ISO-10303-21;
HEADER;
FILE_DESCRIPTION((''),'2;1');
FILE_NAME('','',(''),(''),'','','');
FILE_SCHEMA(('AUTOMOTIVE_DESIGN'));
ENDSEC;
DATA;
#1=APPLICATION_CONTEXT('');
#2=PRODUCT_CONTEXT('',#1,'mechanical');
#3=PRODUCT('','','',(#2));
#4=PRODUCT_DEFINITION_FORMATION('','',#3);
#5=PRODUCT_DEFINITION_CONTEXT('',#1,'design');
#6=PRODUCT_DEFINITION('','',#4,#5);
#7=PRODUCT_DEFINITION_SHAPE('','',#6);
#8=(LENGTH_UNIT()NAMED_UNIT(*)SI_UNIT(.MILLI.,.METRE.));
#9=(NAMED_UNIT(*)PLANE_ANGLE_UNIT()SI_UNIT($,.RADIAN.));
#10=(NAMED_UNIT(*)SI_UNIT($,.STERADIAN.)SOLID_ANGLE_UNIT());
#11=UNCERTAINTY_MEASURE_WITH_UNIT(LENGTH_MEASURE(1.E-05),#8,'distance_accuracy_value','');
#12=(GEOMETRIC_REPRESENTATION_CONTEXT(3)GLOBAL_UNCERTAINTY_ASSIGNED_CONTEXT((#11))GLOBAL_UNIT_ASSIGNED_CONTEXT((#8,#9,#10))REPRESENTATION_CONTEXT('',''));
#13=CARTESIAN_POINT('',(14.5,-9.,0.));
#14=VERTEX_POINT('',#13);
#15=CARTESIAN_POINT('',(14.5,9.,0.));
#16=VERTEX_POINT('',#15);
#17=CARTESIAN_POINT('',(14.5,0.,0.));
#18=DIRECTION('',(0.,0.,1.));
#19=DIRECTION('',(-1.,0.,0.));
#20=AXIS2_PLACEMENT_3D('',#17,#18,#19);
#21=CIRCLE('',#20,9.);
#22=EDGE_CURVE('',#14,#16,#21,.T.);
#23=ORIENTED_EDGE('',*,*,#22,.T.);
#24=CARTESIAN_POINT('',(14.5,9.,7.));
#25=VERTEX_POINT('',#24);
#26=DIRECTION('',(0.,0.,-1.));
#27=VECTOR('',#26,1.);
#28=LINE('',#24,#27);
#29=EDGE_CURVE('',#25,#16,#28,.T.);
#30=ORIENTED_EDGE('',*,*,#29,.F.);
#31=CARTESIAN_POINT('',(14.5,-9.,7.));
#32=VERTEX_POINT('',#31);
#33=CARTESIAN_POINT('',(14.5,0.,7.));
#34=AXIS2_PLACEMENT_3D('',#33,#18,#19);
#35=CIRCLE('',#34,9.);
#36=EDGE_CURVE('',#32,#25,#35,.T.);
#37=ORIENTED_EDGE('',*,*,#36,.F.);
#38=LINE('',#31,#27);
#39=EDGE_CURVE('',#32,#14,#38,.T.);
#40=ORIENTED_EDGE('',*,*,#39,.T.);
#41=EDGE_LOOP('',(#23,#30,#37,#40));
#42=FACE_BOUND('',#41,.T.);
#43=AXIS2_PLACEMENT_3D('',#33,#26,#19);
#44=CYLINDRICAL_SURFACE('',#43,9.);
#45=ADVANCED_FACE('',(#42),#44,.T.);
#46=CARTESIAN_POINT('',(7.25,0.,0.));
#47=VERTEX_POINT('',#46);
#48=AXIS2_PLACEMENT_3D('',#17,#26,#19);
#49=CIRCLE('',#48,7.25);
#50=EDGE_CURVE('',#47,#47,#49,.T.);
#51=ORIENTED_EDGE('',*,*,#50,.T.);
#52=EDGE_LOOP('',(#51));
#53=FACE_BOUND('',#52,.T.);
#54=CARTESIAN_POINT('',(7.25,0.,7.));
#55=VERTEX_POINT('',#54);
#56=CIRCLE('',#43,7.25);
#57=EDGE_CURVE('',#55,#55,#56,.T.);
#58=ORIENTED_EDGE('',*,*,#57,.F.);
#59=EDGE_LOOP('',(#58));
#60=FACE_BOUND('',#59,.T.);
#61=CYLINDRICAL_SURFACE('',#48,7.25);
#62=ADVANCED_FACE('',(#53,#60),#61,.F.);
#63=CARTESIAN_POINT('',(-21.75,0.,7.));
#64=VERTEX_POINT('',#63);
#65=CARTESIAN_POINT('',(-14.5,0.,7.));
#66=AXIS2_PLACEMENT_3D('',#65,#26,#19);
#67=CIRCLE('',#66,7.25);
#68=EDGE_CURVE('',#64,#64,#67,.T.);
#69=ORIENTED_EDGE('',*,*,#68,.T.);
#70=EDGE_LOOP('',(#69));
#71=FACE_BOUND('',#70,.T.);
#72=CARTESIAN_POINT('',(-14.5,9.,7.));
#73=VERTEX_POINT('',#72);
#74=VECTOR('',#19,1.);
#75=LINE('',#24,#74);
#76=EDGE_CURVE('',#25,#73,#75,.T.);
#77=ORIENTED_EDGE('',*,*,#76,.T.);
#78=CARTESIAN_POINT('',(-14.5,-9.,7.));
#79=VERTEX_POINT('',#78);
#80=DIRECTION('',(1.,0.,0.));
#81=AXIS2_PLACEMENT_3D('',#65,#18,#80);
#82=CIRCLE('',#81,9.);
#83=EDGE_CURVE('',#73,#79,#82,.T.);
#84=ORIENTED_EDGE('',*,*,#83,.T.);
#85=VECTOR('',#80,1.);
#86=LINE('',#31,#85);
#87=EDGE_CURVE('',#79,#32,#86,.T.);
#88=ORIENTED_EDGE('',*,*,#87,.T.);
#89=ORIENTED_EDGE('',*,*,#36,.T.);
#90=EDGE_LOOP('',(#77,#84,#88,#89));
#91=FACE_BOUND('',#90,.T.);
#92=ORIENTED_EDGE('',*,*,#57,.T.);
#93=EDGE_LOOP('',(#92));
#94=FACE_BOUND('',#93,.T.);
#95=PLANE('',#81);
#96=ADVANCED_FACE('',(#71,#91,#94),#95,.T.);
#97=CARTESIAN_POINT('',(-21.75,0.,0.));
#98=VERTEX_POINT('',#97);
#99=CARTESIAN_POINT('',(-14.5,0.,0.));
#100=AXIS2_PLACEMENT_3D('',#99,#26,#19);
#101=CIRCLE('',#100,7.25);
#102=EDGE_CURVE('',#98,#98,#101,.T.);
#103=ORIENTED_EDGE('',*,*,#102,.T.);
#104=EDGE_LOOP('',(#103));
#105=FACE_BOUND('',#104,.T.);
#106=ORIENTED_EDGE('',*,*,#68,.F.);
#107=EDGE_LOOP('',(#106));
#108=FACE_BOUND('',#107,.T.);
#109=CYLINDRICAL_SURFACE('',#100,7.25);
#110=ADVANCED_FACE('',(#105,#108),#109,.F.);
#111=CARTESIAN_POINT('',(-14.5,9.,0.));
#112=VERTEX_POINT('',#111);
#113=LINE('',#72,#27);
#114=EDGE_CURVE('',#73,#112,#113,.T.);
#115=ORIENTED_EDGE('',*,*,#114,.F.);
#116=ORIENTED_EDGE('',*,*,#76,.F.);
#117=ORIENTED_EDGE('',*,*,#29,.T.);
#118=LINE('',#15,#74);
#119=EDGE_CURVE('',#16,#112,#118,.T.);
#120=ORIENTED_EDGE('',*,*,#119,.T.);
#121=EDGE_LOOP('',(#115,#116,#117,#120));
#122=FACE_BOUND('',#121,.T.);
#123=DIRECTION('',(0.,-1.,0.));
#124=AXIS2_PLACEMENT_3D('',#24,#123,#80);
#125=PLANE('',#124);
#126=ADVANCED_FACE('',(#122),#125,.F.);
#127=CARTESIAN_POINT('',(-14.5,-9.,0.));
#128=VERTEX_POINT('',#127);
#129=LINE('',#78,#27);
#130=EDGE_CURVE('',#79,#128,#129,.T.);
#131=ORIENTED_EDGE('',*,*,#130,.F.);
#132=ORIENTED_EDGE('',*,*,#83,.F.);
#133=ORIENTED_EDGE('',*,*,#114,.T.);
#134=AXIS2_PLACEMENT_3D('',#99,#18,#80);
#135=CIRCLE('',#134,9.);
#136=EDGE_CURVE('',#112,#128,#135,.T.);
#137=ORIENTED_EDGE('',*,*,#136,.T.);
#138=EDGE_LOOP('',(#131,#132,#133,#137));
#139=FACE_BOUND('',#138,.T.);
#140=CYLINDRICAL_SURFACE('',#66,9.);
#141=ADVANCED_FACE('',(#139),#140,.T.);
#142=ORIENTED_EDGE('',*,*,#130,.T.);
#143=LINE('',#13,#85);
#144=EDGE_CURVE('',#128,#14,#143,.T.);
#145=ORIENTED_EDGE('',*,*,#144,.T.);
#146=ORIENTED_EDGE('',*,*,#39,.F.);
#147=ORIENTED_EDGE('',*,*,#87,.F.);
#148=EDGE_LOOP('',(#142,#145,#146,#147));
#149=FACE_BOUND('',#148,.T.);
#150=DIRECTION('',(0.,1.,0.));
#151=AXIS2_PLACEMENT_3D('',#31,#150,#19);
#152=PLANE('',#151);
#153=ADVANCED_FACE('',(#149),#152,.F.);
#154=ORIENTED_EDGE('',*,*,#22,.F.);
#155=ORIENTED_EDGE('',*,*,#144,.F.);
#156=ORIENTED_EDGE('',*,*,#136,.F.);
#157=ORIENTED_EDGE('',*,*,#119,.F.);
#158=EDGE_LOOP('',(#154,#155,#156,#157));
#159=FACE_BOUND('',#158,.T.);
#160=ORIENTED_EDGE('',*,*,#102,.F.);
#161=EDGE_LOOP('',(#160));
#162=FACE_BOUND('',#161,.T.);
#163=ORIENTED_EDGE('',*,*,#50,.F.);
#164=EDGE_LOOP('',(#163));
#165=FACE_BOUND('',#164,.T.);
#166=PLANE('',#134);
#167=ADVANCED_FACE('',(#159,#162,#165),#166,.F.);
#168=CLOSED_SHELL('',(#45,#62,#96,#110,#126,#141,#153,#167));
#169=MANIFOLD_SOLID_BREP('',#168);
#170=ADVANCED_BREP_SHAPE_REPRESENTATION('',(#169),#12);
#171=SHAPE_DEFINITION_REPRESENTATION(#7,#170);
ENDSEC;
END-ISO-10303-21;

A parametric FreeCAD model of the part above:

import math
import FreeCAD as App
import Part
import Sketcher
Q = App.Units.Quantity

doc = App.newDocument("Part")
params = doc.addObject("Spreadsheet::Sheet", "Params")
for row, (alias, value) in enumerate([
    ("sketch1_radius", "9 mm"),
    ("sketch1_width", "29 mm"),
    ("pad1_length", "7 mm"),
    ("sketch2_diameter", "14.5 mm"),
    ("hole_diameter", "14.5 mm"),
], start=1):
    params.set(f"A{row}", alias)
    params.set(f"B{row}", "=" + value)
    params.setAlias(f"B{row}", alias)

body = doc.addObject("PartDesign::Body", "Body")

# Sketch on XY plane
sketch1 = body.newObject("Sketcher::SketchObject", "Sketch")
sketch1.AttachmentSupport = (doc.getObject("XY_Plane"), [""])
sketch1.MapMode = "FlatFace"
sketch1.addGeometry(Part.LineSegment(App.Vector(14, 9, 0), App.Vector(-14, 9, 0)), False)
sketch1.addGeometry(Part.ArcOfCircle(Part.Circle(App.Vector(-14, 0, 0), App.Vector(0, 0, 1), 9), math.radians(90), math.radians(270)), False)
sketch1.addGeometry(Part.LineSegment(App.Vector(-14, -9, 0), App.Vector(14, -9, 0)), False)
sketch1.addGeometry(Part.ArcOfCircle(Part.Circle(App.Vector(14, 0, 0), App.Vector(0, 0, 1), 9), math.radians(-90), math.radians(90)), False)
sketch1.addConstraint(Sketcher.Constraint("Tangent", 0, 2, 1, 1))
sketch1.addConstraint(Sketcher.Constraint("Tangent", 1, 2, 2, 1))
sketch1.addConstraint(Sketcher.Constraint("Tangent", 2, 2, 3, 1))
sketch1.addConstraint(Sketcher.Constraint("Tangent", 3, 2, 0, 1))
sketch1.addConstraint(Sketcher.Constraint("Horizontal", 0))
sketch1.addConstraint(Sketcher.Constraint("Horizontal", 2))
sketch1.addConstraint(Sketcher.Constraint("Symmetric", 1, 3, 3, 3, -1, 1))
sketch1.addConstraint(Sketcher.Constraint("Radius", 1, Q("9 mm")))
sketch1.addConstraint(Sketcher.Constraint("DistanceX", 0, 2, 0, 1, Q("29 mm")))
sketch1.setExpression("Constraints[7]", "Params.sketch1_radius")
sketch1.setExpression("Constraints[8]", "Params.sketch1_width")
pad1 = body.newObject("PartDesign::Pad", "Pad")
pad1.Profile = sketch1
pad1.setExpression("Length", "Params.pad1_length")

# Sketch on XY plane
sketch2 = body.newObject("Sketcher::SketchObject", "Sketch001")
sketch2.AttachmentSupport = (doc.getObject("XY_Plane"), [""])
sketch2.MapMode = "FlatFace"
sketch2.addGeometry(Part.Circle(App.Vector(-14, 0, 0), App.Vector(0, 0, 1), 7), False)
sketch2.addConstraint(Sketcher.Constraint("PointOnObject", 0, 3, -1))
sketch2.addConstraint(Sketcher.Constraint("Diameter", 0, Q("14.5 mm")))
sketch2.addConstraint(Sketcher.Constraint("DistanceX", 0, 3, -1, 1, Q("14.5 mm")))
sketch2.setExpression("Constraints[1]", "Params.sketch2_diameter")
doc.recompute()
hole = body.newObject("PartDesign::Hole", "Hole")
hole.Profile = sketch2
hole.ThreadType = "None"
hole.setExpression("Diameter", "Params.hole_diameter")
hole.DepthType = "ThroughAll"
hole.Reversed = True
doc.recompute()

mirrored = body.newObject("PartDesign::Mirrored", "Mirrored")
mirrored.Originals = [hole]
mirrored.MirrorPlane = (doc.getObject("YZ_Plane"), [""])
body.Tip = mirrored

doc.recompute()
